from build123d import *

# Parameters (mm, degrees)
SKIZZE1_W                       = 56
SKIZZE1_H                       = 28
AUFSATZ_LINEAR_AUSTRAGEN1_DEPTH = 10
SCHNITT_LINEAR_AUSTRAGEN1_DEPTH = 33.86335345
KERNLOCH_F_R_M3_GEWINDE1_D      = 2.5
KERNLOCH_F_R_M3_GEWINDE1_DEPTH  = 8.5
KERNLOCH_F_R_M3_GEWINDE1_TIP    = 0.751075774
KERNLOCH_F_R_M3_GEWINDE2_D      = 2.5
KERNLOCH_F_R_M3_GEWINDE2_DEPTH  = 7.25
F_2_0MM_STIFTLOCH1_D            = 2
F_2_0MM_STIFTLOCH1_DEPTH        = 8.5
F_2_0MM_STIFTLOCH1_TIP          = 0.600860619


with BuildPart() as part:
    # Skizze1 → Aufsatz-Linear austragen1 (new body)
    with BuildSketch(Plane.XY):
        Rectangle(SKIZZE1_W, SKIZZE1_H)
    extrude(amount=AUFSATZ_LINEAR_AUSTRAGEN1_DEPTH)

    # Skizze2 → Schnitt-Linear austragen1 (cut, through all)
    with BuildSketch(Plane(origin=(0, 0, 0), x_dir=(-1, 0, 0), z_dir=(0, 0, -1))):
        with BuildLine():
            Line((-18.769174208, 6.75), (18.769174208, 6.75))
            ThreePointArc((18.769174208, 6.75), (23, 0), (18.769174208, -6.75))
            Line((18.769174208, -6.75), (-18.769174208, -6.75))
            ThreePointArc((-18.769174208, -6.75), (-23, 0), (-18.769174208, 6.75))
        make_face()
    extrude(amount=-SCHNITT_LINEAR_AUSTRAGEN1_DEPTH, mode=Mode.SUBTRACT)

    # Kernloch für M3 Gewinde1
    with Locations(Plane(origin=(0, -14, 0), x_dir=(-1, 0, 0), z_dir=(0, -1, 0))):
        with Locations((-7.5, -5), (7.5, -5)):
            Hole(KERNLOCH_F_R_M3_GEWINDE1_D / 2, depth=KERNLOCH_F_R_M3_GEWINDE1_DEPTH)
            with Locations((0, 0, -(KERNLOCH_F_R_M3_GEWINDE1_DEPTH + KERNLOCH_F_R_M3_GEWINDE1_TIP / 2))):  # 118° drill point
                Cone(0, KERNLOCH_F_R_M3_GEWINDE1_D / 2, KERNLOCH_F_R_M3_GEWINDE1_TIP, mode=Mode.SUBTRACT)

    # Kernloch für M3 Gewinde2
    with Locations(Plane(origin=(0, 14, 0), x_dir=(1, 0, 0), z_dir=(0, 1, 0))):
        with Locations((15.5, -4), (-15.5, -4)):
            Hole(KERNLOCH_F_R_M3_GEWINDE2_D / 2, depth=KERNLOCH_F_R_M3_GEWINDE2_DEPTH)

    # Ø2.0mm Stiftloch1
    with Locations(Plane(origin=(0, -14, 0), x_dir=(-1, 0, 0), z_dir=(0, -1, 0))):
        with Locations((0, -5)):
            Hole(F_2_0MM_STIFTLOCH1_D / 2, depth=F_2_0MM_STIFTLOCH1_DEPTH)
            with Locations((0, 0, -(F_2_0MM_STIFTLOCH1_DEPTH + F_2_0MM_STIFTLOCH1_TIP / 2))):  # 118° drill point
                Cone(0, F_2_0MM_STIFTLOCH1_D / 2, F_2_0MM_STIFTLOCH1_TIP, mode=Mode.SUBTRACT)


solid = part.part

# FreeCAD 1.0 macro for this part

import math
import FreeCAD as App
import Part
import Sketcher

V = App.Vector

doc = App.newDocument("Part")
body = doc.addObject("PartDesign::Body", "Body")

# Sketch on XY plane
sketch1 = body.newObject("Sketcher::SketchObject", "Sketch")
sketch1.AttachmentSupport = (doc.getObject("XY_Plane"), [""])
sketch1.MapMode = "FlatFace"
sketch1.addGeometry(Part.LineSegment(V(-28, 14, 0), V(-28, -14, 0)), False)
sketch1.addGeometry(Part.LineSegment(V(-28, -14, 0), V(28, -14, 0)), False)
sketch1.addGeometry(Part.LineSegment(V(28, -14, 0), V(28, 14, 0)), False)
sketch1.addGeometry(Part.LineSegment(V(28, 14, 0), V(-28, 14, 0)), False)
sketch1.addConstraint(Sketcher.Constraint("Coincident", 0, 2, 1, 1))
sketch1.addConstraint(Sketcher.Constraint("Coincident", 1, 2, 2, 1))
sketch1.addConstraint(Sketcher.Constraint("Coincident", 2, 2, 3, 1))
sketch1.addConstraint(Sketcher.Constraint("Coincident", 3, 2, 0, 1))
sketch1.addConstraint(Sketcher.Constraint("Vertical", 0))
sketch1.addConstraint(Sketcher.Constraint("Horizontal", 1))
sketch1.addConstraint(Sketcher.Constraint("Vertical", 2))
sketch1.addConstraint(Sketcher.Constraint("Horizontal", 3))
sketch1.addConstraint(Sketcher.Constraint("Symmetric", 0, 2, 2, 2, -1, 1))
sketch1.addConstraint(Sketcher.Constraint("DistanceX", 1, 1, 1, 2, 56.0))
sketch1.addConstraint(Sketcher.Constraint("DistanceY", 0, 2, 0, 1, 28.0))
pad1 = body.newObject("PartDesign::Pad", "Pad")
pad1.Profile = sketch1
pad1.Length = 10

# Sketch on XY plane
sketch2 = body.newObject("Sketcher::SketchObject", "Sketch001")
sketch2.AttachmentSupport = (doc.getObject("XY_Plane"), [""])
sketch2.MapMode = "FlatFace"
sketch2.addGeometry(Part.LineSegment(V(-19, 7, 0), V(19, 7, 0)), False)
sketch2.addGeometry(Part.ArcOfCircle(Part.Circle(V(16, 0, 0), V(0, 0, 1), 8), math.radians(-64), math.radians(64)), False)
sketch2.addGeometry(Part.LineSegment(V(19, -7, 0), V(-19, -7, 0)), False)
sketch2.addGeometry(Part.ArcOfCircle(Part.Circle(V(-16, 0, 0), V(0, 0, 1), 8), math.radians(116), math.radians(244)), False)
sketch2.addConstraint(Sketcher.Constraint("Coincident", 0, 2, 1, 2))
sketch2.addConstraint(Sketcher.Constraint("Coincident", 1, 1, 2, 1))
sketch2.addConstraint(Sketcher.Constraint("Coincident", 2, 2, 3, 2))
sketch2.addConstraint(Sketcher.Constraint("Coincident", 3, 1, 0, 1))
sketch2.addConstraint(Sketcher.Constraint("Horizontal", 0))
sketch2.addConstraint(Sketcher.Constraint("Horizontal", 2))
sketch2.addConstraint(Sketcher.Constraint("Equal", 1, 3))
sketch2.addConstraint(Sketcher.Constraint("Symmetric", 1, 3, 3, 3, -1, 1))
sketch2.addConstraint(Sketcher.Constraint("Symmetric", 0, 2, 1, 1, -1))
sketch2.addConstraint(Sketcher.Constraint("Radius", 1, 7.5))
sketch2.addConstraint(Sketcher.Constraint("DistanceX", 3, 3, 1, 3, 31.0))
sketch2.addConstraint(Sketcher.Constraint("DistanceY", 1, 1, 0, 2, 13.5))
pocket1 = body.newObject("PartDesign::Pocket", "Pocket")
pocket1.Profile = sketch2
pocket1.Type = "ThroughAll"
pocket1.Reversed = True

# Sketch on XZ plane
sketch3 = body.newObject("Sketcher::SketchObject", "Sketch002")
sketch3.AttachmentSupport = (doc.getObject("XZ_Plane"), [""])
sketch3.MapMode = "FlatFace"
sketch3.AttachmentOffset = App.Placement(V(0, 0, 14), App.Rotation())
sketch3.addGeometry(Part.Circle(V(7.5, 5, 0), V(0, 0, 1), 1.2), False)
sketch3.addGeometry(Part.Circle(V(-7.5, 5, 0), V(0, 0, 1), 1.2), False)
sketch3.addConstraint(Sketcher.Constraint("Equal", 0, 1))
sketch3.addConstraint(Sketcher.Constraint("Symmetric", 0, 3, 1, 3, -2))
sketch3.addConstraint(Sketcher.Constraint("Diameter", 0, 2.5))
sketch3.addConstraint(Sketcher.Constraint("DistanceY", -1, 1, 0, 3, 5.0))
sketch3.addConstraint(Sketcher.Constraint("DistanceX", 1, 3, 0, 3, 15.0))
doc.recompute()
hole = body.newObject("PartDesign::Hole", "Hole")
hole.Profile = sketch3
hole.ThreadType = "None"
hole.Diameter = 2.5
hole.DepthType = "Dimension"
hole.Depth = 8.5
hole.DrillPoint = "Angled"
hole.DrillPointAngle = 118

# Sketch on XZ plane
sketch4 = body.newObject("Sketcher::SketchObject", "Sketch003")
sketch4.AttachmentSupport = (doc.getObject("XZ_Plane"), [""])
sketch4.MapMode = "FlatFace"
sketch4.AttachmentOffset = App.Placement(V(0, 0, -14), App.Rotation())
sketch4.addGeometry(Part.Circle(V(15.5, 4, 0), V(0, 0, 1), 1.2), False)
sketch4.addGeometry(Part.Circle(V(-15.5, 4, 0), V(0, 0, 1), 1.2), False)
sketch4.addConstraint(Sketcher.Constraint("Equal", 0, 1))
sketch4.addConstraint(Sketcher.Constraint("Symmetric", 0, 3, 1, 3, -2))
sketch4.addConstraint(Sketcher.Constraint("Diameter", 0, 2.5))
sketch4.addConstraint(Sketcher.Constraint("DistanceY", -1, 1, 0, 3, 4.0))
sketch4.addConstraint(Sketcher.Constraint("DistanceX", 1, 3, 0, 3, 31.0))
doc.recompute()
hole2 = body.newObject("PartDesign::Hole", "Hole001")
hole2.Profile = sketch4
hole2.ThreadType = "None"
hole2.Diameter = 2.5
hole2.DepthType = "Dimension"
hole2.Depth = 7.25
hole2.DrillPoint = "Flat"
hole2.Reversed = True

# Sketch on XZ plane
sketch5 = body.newObject("Sketcher::SketchObject", "Sketch004")
sketch5.AttachmentSupport = (doc.getObject("XZ_Plane"), [""])
sketch5.MapMode = "FlatFace"
sketch5.AttachmentOffset = App.Placement(V(0, 0, 14), App.Rotation())
sketch5.addGeometry(Part.Circle(V(0, 5, 0), V(0, 0, 1), 1), False)
sketch5.addConstraint(Sketcher.Constraint("PointOnObject", 0, 3, -2))
sketch5.addConstraint(Sketcher.Constraint("Diameter", 0, 2.0))
sketch5.addConstraint(Sketcher.Constraint("DistanceY", -1, 1, 0, 3, 5.0))
doc.recompute()
hole3 = body.newObject("PartDesign::Hole", "Hole002")
hole3.Profile = sketch5
hole3.ThreadType = "None"
hole3.Diameter = 2
hole3.DepthType = "Dimension"
hole3.Depth = 8.5
hole3.DrillPoint = "Angled"
hole3.DrillPointAngle = 118

doc.recompute()
